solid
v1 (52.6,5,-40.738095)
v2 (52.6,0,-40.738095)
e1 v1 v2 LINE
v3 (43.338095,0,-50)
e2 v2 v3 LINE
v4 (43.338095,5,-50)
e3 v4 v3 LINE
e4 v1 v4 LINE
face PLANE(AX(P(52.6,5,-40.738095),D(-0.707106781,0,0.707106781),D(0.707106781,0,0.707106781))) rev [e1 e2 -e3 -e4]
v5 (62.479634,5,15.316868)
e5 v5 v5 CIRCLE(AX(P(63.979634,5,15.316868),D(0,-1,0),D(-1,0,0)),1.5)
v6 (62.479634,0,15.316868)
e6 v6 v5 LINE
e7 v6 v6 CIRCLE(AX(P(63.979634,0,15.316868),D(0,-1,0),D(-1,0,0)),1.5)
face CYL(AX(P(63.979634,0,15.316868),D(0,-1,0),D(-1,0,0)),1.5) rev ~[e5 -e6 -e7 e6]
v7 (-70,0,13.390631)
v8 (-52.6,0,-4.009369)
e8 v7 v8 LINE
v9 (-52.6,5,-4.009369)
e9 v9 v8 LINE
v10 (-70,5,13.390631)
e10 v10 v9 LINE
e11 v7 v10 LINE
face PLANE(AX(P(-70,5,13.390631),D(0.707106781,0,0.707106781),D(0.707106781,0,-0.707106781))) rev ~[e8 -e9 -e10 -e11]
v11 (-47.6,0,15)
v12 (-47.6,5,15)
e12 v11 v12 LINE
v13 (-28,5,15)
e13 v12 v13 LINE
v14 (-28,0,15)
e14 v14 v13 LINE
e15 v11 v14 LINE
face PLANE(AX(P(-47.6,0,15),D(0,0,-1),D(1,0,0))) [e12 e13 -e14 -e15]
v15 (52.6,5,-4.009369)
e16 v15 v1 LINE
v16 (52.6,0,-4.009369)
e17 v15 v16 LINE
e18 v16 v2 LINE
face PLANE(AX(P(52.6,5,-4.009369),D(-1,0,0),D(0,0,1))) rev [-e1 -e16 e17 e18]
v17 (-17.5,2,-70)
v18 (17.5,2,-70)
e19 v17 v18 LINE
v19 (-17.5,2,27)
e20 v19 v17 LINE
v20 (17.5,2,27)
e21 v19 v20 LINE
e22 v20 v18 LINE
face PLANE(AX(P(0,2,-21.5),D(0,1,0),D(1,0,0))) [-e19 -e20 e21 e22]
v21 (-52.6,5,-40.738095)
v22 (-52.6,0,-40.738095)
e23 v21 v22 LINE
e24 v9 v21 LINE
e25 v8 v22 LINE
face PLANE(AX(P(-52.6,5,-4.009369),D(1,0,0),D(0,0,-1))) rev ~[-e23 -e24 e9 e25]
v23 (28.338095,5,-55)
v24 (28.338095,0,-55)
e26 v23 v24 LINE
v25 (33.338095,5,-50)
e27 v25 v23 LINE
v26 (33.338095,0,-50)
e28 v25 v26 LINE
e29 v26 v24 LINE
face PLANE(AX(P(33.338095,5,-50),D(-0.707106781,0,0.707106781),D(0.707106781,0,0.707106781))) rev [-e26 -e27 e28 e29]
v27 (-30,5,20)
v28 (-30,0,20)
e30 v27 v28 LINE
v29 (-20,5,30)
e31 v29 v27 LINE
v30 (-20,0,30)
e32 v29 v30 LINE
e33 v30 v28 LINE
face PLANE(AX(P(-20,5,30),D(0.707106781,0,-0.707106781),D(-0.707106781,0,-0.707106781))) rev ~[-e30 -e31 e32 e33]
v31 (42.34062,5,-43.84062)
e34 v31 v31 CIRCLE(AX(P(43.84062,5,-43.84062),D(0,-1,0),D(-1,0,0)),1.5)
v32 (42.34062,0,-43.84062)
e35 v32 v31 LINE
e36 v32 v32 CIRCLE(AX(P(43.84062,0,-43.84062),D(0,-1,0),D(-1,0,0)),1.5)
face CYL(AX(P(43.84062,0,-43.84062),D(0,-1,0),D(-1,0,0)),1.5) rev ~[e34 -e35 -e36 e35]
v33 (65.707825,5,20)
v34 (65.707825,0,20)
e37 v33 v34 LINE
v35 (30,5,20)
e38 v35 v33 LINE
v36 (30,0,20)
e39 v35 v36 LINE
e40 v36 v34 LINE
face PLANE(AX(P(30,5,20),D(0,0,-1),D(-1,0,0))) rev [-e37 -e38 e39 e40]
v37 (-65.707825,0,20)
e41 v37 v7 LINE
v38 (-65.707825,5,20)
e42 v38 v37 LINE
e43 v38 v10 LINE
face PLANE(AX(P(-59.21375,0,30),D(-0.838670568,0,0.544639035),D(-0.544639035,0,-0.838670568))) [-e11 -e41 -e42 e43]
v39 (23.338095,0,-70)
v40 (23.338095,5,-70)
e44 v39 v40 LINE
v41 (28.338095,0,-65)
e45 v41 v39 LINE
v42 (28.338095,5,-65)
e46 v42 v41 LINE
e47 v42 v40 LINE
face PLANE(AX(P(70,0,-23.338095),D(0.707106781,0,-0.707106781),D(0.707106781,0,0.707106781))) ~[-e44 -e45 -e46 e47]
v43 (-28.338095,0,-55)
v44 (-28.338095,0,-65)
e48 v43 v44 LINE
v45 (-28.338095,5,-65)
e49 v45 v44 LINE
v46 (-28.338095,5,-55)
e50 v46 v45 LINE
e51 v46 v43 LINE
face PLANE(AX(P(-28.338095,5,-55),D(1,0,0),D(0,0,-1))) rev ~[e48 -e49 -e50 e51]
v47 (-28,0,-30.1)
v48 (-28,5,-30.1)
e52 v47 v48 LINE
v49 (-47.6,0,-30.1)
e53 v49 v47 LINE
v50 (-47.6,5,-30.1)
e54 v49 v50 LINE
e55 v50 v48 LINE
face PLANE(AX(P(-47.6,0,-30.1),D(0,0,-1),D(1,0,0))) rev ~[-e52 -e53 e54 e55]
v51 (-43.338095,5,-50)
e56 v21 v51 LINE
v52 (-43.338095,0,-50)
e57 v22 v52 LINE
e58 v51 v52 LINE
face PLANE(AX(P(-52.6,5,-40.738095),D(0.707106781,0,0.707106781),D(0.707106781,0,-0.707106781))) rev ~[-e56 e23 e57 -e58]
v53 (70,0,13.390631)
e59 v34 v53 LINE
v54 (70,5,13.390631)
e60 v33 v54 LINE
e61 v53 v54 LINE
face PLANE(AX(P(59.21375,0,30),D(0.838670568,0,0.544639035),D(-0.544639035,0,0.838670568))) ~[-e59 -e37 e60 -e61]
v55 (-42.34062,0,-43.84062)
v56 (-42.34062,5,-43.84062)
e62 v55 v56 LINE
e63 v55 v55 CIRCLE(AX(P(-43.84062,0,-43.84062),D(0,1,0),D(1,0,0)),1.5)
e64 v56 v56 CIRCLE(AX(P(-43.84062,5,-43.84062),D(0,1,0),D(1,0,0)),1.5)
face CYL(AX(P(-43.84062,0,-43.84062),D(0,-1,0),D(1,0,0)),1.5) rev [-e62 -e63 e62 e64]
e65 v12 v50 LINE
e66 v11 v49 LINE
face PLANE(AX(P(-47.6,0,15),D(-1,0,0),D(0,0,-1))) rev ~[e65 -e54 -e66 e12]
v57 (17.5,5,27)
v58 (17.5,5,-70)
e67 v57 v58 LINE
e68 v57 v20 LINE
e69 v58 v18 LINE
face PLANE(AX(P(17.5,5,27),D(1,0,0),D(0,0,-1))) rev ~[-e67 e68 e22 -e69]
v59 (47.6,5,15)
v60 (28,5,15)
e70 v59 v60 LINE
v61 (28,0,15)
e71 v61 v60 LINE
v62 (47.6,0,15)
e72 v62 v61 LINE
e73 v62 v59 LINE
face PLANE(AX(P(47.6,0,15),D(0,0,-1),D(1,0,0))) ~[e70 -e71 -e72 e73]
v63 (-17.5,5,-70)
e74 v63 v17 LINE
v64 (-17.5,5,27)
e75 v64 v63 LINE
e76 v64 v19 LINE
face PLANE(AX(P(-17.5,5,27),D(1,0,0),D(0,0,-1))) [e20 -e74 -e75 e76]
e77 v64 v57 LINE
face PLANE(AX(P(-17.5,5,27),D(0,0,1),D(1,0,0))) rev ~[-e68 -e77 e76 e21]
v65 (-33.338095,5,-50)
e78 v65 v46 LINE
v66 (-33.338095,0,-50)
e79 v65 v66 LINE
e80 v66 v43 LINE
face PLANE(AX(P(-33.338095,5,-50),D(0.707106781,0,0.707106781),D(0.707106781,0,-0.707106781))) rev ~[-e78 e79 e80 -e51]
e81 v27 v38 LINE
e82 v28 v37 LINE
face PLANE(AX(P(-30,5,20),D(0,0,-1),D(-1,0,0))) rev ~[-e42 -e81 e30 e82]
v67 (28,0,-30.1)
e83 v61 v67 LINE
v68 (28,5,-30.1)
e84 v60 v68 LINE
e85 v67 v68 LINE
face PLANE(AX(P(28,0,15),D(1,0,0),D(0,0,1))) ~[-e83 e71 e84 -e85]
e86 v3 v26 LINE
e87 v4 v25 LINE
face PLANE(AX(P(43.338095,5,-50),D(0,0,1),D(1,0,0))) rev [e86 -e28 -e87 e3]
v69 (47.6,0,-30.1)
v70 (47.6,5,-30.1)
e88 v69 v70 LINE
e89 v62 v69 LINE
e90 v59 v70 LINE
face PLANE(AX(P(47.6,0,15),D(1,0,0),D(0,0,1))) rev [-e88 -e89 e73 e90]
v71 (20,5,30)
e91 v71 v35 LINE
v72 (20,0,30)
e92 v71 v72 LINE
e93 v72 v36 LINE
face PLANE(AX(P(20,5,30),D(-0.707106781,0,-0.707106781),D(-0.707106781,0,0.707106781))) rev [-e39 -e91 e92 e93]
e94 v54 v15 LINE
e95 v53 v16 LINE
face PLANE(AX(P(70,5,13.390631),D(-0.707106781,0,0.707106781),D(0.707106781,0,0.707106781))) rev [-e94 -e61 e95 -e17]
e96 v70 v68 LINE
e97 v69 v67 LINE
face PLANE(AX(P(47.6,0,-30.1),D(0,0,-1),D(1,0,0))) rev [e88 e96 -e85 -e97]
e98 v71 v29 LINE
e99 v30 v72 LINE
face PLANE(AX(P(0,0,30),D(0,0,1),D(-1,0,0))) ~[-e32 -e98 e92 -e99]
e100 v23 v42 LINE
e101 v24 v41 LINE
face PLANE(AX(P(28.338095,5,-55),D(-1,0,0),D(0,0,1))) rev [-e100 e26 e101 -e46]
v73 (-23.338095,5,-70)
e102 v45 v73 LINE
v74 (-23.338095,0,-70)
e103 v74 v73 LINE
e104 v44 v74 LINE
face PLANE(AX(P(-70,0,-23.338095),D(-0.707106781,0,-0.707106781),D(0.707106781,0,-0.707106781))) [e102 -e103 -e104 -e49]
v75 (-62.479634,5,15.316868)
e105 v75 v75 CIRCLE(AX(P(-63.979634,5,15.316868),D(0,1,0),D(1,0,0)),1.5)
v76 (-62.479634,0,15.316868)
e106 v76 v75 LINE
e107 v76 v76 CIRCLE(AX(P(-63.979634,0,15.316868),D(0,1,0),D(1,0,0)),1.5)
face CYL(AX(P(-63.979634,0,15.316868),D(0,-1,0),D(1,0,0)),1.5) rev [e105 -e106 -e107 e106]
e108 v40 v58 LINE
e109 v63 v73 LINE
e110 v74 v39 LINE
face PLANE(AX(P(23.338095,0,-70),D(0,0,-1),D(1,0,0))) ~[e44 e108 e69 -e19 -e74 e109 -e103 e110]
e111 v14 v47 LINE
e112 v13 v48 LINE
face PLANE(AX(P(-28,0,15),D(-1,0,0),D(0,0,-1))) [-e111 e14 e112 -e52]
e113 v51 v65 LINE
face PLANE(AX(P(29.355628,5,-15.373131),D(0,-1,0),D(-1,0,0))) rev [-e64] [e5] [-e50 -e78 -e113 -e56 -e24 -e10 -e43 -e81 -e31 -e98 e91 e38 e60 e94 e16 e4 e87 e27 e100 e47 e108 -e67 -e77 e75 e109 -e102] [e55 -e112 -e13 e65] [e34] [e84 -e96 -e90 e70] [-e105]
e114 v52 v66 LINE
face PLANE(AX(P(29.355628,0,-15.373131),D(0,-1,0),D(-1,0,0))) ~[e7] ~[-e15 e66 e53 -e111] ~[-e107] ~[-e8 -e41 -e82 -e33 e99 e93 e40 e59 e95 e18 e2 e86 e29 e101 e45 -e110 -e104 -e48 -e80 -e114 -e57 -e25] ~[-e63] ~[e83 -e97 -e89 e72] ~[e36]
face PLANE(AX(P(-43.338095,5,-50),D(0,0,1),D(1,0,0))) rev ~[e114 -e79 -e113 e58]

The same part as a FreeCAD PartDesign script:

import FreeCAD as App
import Part
import Sketcher
from FreeCAD import Vector
Q = App.Units.Quantity


def add_polygon(sketch, points):
    """Adds a closed chain of lines whose ends are joined by coincident constraints."""
    first, n = sketch.GeometryCount, len(points)
    for a, b in zip(points, points[1:] + points[:1]):
        sketch.addGeometry(Part.LineSegment(App.Vector(*a, 0), App.Vector(*b, 0)), False)
    for i in range(n):
        sketch.addConstraint(Sketcher.Constraint("Coincident", first + i, 2, first + (i + 1) % n, 1))

doc = App.newDocument("Part")
body = doc.addObject("PartDesign::Body", "Body")

# Sketch on XZ plane
sketch1 = body.newObject("Sketcher::SketchObject", "Sketch")
sketch1.AttachmentSupport = (doc.getObject("XZ_Plane"), [""])
sketch1.MapMode = "FlatFace"
add_polygon(sketch1, [(-70, 13.4), (-59.2, 30), (0, 30), (0, -70), (-23.3, -70), (-70, -23.3)])  # lines 0-5
add_polygon(sketch1, [(-47.6, 15), (-47.6, -30.1), (-28, -30.1), (-28, 15)])  # lines 6-9
sketch1.addGeometry(Part.Circle(Vector(-64, 15.3, 0), Vector(0, 0, 1), 1.5), False)  # 10
sketch1.addGeometry(Part.Circle(Vector(-43.8, -43.8, 0), Vector(0, 0, 1), 1.5), False)  # 11
sketch1.addConstraint(Sketcher.Constraint("Horizontal", 1))
sketch1.addConstraint(Sketcher.Constraint("Vertical", 2))
sketch1.addConstraint(Sketcher.Constraint("Horizontal", 3))
sketch1.addConstraint(Sketcher.Constraint("Vertical", 5))
sketch1.addConstraint(Sketcher.Constraint("Vertical", 6))
sketch1.addConstraint(Sketcher.Constraint("Horizontal", 7))
sketch1.addConstraint(Sketcher.Constraint("Vertical", 8))
sketch1.addConstraint(Sketcher.Constraint("Horizontal", 9))
sketch1.addConstraint(Sketcher.Constraint("Equal", 10, 11))
sketch1.addConstraint(Sketcher.Constraint("PointOnObject", 1, 2, -2))
sketch1.addConstraint(Sketcher.Constraint("Diameter", 10, 3.0))
sketch1.addConstraint(Sketcher.Constraint("DistanceY", 2, 2, 2, 1, 100.0))
sketch1.addConstraint(Sketcher.Constraint("Angle", 0, Q("57 deg")))
sketch1.addConstraint(Sketcher.Constraint("Angle", 4, Q("135 deg")))
sketch1.addConstraint(Sketcher.Constraint("DistanceX", 7, 1, 7, 2, 19.6))
sketch1.addConstraint(Sketcher.Constraint("DistanceY", 6, 2, 6, 1, 45.1))
sketch1.addConstraint(Sketcher.Constraint("DistanceY", -1, 1, 0, 2, 30.0))
sketch1.addConstraint(Sketcher.Constraint("DistanceX", 4, 2, -1, 1, 70.0))
sketch1.addConstraint(Sketcher.Constraint("DistanceX", 7, 2, -1, 1, 28.0))
sketch1.addConstraint(Sketcher.Constraint("DistanceY", -1, 1, 8, 2, 15.0))
sketch1.addConstraint(Sketcher.Constraint("Distance", 4, 65.989899))
sketch1.addConstraint(Sketcher.Constraint("DistanceX", 1, 1, 1, 2, 59.21375))
sketch1.addConstraint(Sketcher.Constraint("DistanceX", 11, 3, -1, 1, 43.84062))
sketch1.addConstraint(Sketcher.Constraint("DistanceY", 11, 3, -1, 1, 43.84062))
sketch1.addConstraint(Sketcher.Constraint("DistanceY", 11, 3, 10, 3, 59.157488))
sketch1.addConstraint(Sketcher.Constraint("DistanceX", 10, 3, 3, 2, 40.641539))
pad1 = body.newObject("PartDesign::Pad", "Pad")
pad1.Profile = sketch1
pad1.Length = 5
pad1.Reversed = True

# Sketch on XZ plane
sketch2 = body.newObject("Sketcher::SketchObject", "Sketch001")
sketch2.AttachmentSupport = (doc.getObject("XZ_Plane"), [""])
sketch2.MapMode = "FlatFace"
sketch2.AttachmentOffset = App.Placement(Vector(0, 0, -5), App.Rotation())
add_polygon(sketch2, [(-20, 30), (-30, 20), (-66, 20), (-70, 13), (-53, -4), (-53, -41), (-43, -50), (-33, -50), (-28, -55), (-28, -65), (-75, -65), (-75, 30)])  # lines 0-11
sketch2.addConstraint(Sketcher.Constraint("Horizontal", 1))
sketch2.addConstraint(Sketcher.Constraint("Vertical", 4))
sketch2.addConstraint(Sketcher.Constraint("Horizontal", 6))
sketch2.addConstraint(Sketcher.Constraint("Vertical", 8))
sketch2.addConstraint(Sketcher.Constraint("Horizontal", 9))
sketch2.addConstraint(Sketcher.Constraint("Vertical", 10))
sketch2.addConstraint(Sketcher.Constraint("Horizontal", 11))
sketch2.addConstraint(Sketcher.Constraint("Perpendicular", 0, 3))
sketch2.addConstraint(Sketcher.Constraint("Parallel", 3, 5))
sketch2.addConstraint(Sketcher.Constraint("Parallel", 5, 7))
sketch2.addConstraint(Sketcher.Constraint("Equal", 6, 8))
sketch2.addConstraint(Sketcher.Constraint("DistanceX", 6, 1, 6, 2, 10.0))
sketch2.addConstraint(Sketcher.Constraint("DistanceX", 11, 1, 11, 2, 55.0))
sketch2.addConstraint(Sketcher.Constraint("DistanceY", 10, 1, 10, 2, 95.0))
sketch2.addConstraint(Sketcher.Constraint("Angle", 0, Q("-135 deg")))
sketch2.addConstraint(Sketcher.Constraint("Angle", 2, Q("-123 deg")))
sketch2.addConstraint(Sketcher.Constraint("DistanceX", 0, 2, -1, 1, 30.0))
sketch2.addConstraint(Sketcher.Constraint("DistanceY", -1, 1, 0, 2, 20.0))
sketch2.addConstraint(Sketcher.Constraint("DistanceX", 2, 2, -1, 1, 70.0))
sketch2.addConstraint(Sketcher.Constraint("DistanceY", 5, 2, -1, 1, 50.0))
sketch2.addConstraint(Sketcher.Constraint("DistanceY", 7, 2, -1, 1, 55.0))
sketch2.addConstraint(Sketcher.Constraint("DistanceX", 3, 2, -1, 1, 52.6))
sketch2.addConstraint(Sketcher.Constraint("Distance", 2, 7.880769))
sketch2.addConstraint(Sketcher.Constraint("Distance", 5, 13.098311))
pocket1 = body.newObject("PartDesign::Pocket", "Pocket")
pocket1.Profile = sketch2
pocket1.Length = 5
pocket1.Reversed = True
doc.recompute()

mirrored = body.newObject("PartDesign::Mirrored", "Mirrored")
mirrored.Originals = [pad1, pocket1]
mirrored.MirrorPlane = (doc.getObject("YZ_Plane"), [""])
body.Tip = mirrored

# Sketch on XZ plane
sketch3 = body.newObject("Sketcher::SketchObject", "Sketch002")
sketch3.AttachmentSupport = (doc.getObject("XZ_Plane"), [""])
sketch3.MapMode = "FlatFace"
sketch3.AttachmentOffset = App.Placement(Vector(0, 0, -5), App.Rotation())
add_polygon(sketch3, [(-18, -70), (-18, 27), (18, 27), (18, -70)])  # lines 0-3
sketch3.addConstraint(Sketcher.Constraint("Vertical", 0))
sketch3.addConstraint(Sketcher.Constraint("Horizontal", 1))
sketch3.addConstraint(Sketcher.Constraint("Vertical", 2))
sketch3.addConstraint(Sketcher.Constraint("Horizontal", 3))
sketch3.addConstraint(Sketcher.Constraint("DistanceX", 1, 1, 1, 2, 35.0))
sketch3.addConstraint(Sketcher.Constraint("DistanceY", 0, 1, 0, 2, 97.0))
sketch3.addConstraint(Sketcher.Constraint("DistanceY", -1, 1, 0, 2, 27.0))
sketch3.addConstraint(Sketcher.Constraint("DistanceX", 0, 2, -1, 1, 17.5))
pocket2 = body.newObject("PartDesign::Pocket", "Pocket001")
pocket2.Profile = sketch3
pocket2.Length = 3
pocket2.Reversed = True

doc.recompute()
